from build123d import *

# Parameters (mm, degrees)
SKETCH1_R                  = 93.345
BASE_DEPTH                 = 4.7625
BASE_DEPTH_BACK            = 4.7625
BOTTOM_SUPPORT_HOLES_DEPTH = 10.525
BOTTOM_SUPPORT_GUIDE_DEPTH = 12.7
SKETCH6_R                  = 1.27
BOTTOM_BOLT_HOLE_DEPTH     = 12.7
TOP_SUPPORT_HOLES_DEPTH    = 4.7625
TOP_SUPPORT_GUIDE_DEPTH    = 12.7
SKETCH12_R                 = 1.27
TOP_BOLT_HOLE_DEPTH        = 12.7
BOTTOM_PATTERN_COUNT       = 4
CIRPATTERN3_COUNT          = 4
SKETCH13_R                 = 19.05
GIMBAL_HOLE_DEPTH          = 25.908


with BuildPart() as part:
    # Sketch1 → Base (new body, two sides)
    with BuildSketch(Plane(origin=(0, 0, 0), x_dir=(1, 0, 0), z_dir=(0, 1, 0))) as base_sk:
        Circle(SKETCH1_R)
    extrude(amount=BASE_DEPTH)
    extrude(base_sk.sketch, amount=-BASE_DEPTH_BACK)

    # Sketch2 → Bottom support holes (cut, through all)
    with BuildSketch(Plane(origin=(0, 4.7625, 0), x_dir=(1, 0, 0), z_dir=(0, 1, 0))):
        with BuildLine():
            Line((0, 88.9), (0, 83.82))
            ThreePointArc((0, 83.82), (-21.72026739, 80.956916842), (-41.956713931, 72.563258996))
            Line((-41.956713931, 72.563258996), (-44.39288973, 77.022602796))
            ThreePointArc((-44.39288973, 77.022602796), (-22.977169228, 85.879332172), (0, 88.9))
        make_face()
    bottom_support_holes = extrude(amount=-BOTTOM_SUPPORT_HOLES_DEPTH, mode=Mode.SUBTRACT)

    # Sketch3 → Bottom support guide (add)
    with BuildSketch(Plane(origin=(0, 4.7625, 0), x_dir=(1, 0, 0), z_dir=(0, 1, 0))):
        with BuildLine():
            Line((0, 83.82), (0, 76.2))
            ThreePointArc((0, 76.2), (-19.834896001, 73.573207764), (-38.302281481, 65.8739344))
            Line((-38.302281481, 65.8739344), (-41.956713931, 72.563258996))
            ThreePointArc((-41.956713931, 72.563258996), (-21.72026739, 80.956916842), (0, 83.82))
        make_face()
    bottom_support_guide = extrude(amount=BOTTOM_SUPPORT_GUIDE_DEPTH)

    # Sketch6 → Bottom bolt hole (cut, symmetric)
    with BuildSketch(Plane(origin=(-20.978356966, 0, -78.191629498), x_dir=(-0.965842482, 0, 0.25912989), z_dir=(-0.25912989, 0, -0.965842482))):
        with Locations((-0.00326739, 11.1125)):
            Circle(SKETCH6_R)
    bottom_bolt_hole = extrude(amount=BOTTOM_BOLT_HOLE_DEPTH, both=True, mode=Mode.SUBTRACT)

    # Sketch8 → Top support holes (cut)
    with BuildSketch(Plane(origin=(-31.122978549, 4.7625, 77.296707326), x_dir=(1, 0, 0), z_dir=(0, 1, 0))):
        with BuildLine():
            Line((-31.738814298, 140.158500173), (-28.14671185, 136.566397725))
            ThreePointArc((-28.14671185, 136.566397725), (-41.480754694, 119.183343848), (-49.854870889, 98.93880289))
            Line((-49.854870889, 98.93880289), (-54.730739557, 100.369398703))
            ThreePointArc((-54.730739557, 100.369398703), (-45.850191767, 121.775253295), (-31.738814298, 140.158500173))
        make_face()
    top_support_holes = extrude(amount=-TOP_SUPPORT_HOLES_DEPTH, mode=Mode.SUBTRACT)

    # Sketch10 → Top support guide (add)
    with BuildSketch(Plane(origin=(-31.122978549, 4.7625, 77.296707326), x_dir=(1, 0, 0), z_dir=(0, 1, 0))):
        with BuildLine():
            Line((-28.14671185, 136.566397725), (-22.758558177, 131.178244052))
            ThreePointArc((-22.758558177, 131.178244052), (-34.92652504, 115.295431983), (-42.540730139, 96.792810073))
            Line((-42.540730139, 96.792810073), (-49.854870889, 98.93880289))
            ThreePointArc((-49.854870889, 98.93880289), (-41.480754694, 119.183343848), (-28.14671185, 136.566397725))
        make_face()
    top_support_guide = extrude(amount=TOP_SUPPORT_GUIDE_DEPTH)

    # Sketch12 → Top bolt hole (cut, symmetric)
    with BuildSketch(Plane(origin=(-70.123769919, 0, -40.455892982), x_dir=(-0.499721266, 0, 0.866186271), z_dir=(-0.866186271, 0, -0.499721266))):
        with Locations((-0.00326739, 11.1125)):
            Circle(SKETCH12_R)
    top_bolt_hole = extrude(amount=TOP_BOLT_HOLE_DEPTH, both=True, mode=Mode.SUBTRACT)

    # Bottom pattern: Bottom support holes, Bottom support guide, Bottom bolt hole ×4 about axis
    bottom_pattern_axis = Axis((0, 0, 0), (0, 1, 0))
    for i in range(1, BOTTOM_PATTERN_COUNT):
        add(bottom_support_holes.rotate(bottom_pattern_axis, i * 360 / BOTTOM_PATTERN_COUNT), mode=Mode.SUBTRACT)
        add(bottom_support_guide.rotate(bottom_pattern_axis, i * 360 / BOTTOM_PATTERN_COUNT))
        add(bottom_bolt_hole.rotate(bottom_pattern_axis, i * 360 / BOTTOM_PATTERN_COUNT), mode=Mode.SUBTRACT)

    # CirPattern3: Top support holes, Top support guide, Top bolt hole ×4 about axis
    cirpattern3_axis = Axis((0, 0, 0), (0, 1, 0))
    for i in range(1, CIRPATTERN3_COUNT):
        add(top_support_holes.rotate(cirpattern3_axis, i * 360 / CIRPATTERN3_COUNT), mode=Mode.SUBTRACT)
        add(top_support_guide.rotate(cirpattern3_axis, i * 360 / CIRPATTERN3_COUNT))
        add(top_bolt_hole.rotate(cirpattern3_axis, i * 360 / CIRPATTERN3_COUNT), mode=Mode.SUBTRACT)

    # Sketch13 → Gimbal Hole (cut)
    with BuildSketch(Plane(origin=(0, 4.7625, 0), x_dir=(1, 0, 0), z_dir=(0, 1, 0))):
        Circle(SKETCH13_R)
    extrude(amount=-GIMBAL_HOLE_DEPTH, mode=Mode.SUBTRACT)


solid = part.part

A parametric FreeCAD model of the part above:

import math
import FreeCAD as App
import Part
import Sketcher

V = App.Vector
Q = App.Units.Quantity

doc = App.newDocument("Part")
body = doc.addObject("PartDesign::Body", "Body")

# Sketch on XZ plane
sketch1 = body.newObject("Sketcher::SketchObject", "Sketch")
sketch1.AttachmentSupport = (doc.getObject("XZ_Plane"), [""])
sketch1.MapMode = "FlatFace"
sketch1.addGeometry(Part.Circle(V(0, 0, 0), V(0, 0, 1), 93), False)
sketch1.addConstraint([
    Sketcher.Constraint("Coincident", 0, 3, -1, 1),
    Sketcher.Constraint("Diameter", 0, Q("7.35 in")),
])
pad1 = body.newObject("PartDesign::Pad", "Pad")
pad1.Profile = sketch1
pad1.Type = "TwoLengths"
pad1.Length = Q("0.1875 in")
pad1.Length2 = Q("0.1875 in")
pad1.Reversed = True

# Sketch on XZ plane
sketch2 = body.newObject("Sketcher::SketchObject", "Sketch001")
sketch2.AttachmentSupport = (doc.getObject("XZ_Plane"), [""])
sketch2.MapMode = "FlatFace"
sketch2.AttachmentOffset = App.Placement(V(0, 0, -0.1875 * 25.4), App.Rotation())
sketch2.addGeometry([
    Part.LineSegment(V(0, -84, 0), V(0, -89, 0)),
    Part.ArcOfCircle(Part.Circle(V(0, 0, 0), V(0, 0, 1), 89), math.radians(-120), math.radians(-90)),
    Part.LineSegment(V(-44, -77, 0), V(-42, -73, 0)),
    Part.ArcOfCircle(Part.Circle(V(0, 0, 0), V(0, 0, 1), 84), math.radians(-120), math.radians(-90)),
], False)
sketch2.addConstraint([
    Sketcher.Constraint("Coincident", 0, 2, 1, 2),
    Sketcher.Constraint("Coincident", 1, 1, 2, 1),
    Sketcher.Constraint("Coincident", 2, 2, 3, 1),
    Sketcher.Constraint("Coincident", 3, 2, 0, 1),
    Sketcher.Constraint("Vertical", 0),
    Sketcher.Constraint("Coincident", 1, 3, -1, 1),
    Sketcher.Constraint("Coincident", 3, 3, -1, 1),
    Sketcher.Constraint("PointOnObject", 0, 2, -2),
    Sketcher.Constraint("Radius", 1, Q("3.5 in")),
    Sketcher.Constraint("Radius", 3, Q("3.3 in")),
    Sketcher.Constraint("DistanceX", 1, 1, -1, 1, 44.39289),
    Sketcher.Constraint("DistanceY", 2, 2, -1, 1, 72.563259),
])
pocket1 = body.newObject("PartDesign::Pocket", "Pocket")
pocket1.Profile = sketch2
pocket1.Type = "ThroughAll"
pocket1.Reversed = True

# Sketch on XZ plane
sketch3 = body.newObject("Sketcher::SketchObject", "Sketch002")
sketch3.AttachmentSupport = (doc.getObject("XZ_Plane"), [""])
sketch3.MapMode = "FlatFace"
sketch3.AttachmentOffset = App.Placement(V(0, 0, -0.1875 * 25.4), App.Rotation())
sketch3.addGeometry([
    Part.LineSegment(V(0, -76, 0), V(0, -84, 0)),
    Part.ArcOfCircle(Part.Circle(V(0, 0, 0), V(0, 0, 1), 84), math.radians(-120), math.radians(-90)),
    Part.LineSegment(V(-42, -73, 0), V(-38, -66, 0)),
    Part.ArcOfCircle(Part.Circle(V(0, 0, 0), V(0, 0, 1), 76), math.radians(-120), math.radians(-90)),
], False)
sketch3.addConstraint([
    Sketcher.Constraint("Coincident", 0, 2, 1, 2),
    Sketcher.Constraint("Coincident", 1, 1, 2, 1),
    Sketcher.Constraint("Coincident", 2, 2, 3, 1),
    Sketcher.Constraint("Coincident", 3, 2, 0, 1),
    Sketcher.Constraint("Vertical", 0),
    Sketcher.Constraint("Coincident", 1, 3, -1, 1),
    Sketcher.Constraint("Coincident", 3, 3, -1, 1),
    Sketcher.Constraint("PointOnObject", 0, 2, -2),
    Sketcher.Constraint("Radius", 3, Q("3 in")),
    Sketcher.Constraint("Radius", 1, Q("3.3 in")),
    Sketcher.Constraint("DistanceY", 1, 1, -1, 1, 72.563259),
    Sketcher.Constraint("DistanceX", 2, 2, -1, 1, 38.302281),
])
pad2 = body.newObject("PartDesign::Pad", "Pad001")
pad2.Profile = sketch3
pad2.Length = Q("0.5 in")
pad2.Reversed = True

# Sketch on an angled plane
sketch4 = body.newObject("Sketcher::SketchObject", "Sketch003")
sketch4.Placement = App.Placement(V(-20.978357, 0, -78.191629), App.Rotation(V(-0.965842482, 0, 0.25912989), V(0, 1, 0), V(-0.25912989, 0, -0.965842482), "ZXY"))
sketch4.addGeometry(Part.Circle(V(0, 11.1, 0), V(0, 0, 1), 1.3), False)
sketch4.addConstraint([
    Sketcher.Constraint("Diameter", 0, Q("0.1 in")),
    Sketcher.Constraint("DistanceY", -1, 1, 0, 3, Q("0.4375 in")),
    Sketcher.Constraint("DistanceX", 0, 3, -1, 1, 0.003267),
])
pocket2 = body.newObject("PartDesign::Pocket", "Pocket001")
pocket2.Profile = sketch4
pocket2.Length = Q("1 in")
pocket2.Midplane = True

# Sketch on XZ plane
sketch5 = body.newObject("Sketcher::SketchObject", "Sketch004")
sketch5.AttachmentSupport = (doc.getObject("XZ_Plane"), [""])
sketch5.MapMode = "FlatFace"
sketch5.AttachmentOffset = App.Placement(V(0, 0, -0.1875 * 25.4), App.Rotation())
sketch5.addGeometry([
    Part.LineSegment(V(-59, -59, 0), V(-63, -63, 0)),
    Part.ArcOfCircle(Part.Circle(V(0, 0, 0), V(0, 0, 1), 89), math.radians(-165), math.radians(-135)),
    Part.LineSegment(V(-86, -23, 0), V(-81, -22, 0)),
    Part.ArcOfCircle(Part.Circle(V(0, 0, 0), V(0, 0, 1), 84), math.radians(-165), math.radians(-135)),
], False)
sketch5.addConstraint([
    Sketcher.Constraint("Coincident", 0, 2, 1, 2),
    Sketcher.Constraint("Coincident", 1, 1, 2, 1),
    Sketcher.Constraint("Coincident", 2, 2, 3, 1),
    Sketcher.Constraint("Coincident", 3, 2, 0, 1),
    Sketcher.Constraint("Coincident", 1, 3, -1, 1),
    Sketcher.Constraint("Coincident", 3, 3, -1, 1),
    Sketcher.Constraint("Radius", 1, Q("3.5 in")),
    Sketcher.Constraint("Radius", 3, Q("3.3 in")),
    Sketcher.Constraint("Angle", 0, Q("-135 deg")),
    Sketcher.Constraint("DistanceY", 0, 2, 1, 1, Q("1.5665001 in")),
    Sketcher.Constraint("DistanceX", 1, 1, -1, 1, 85.853718),
    Sketcher.Constraint("DistanceX", 2, 2, -1, 1, 80.977849),
])
pocket3 = body.newObject("PartDesign::Pocket", "Pocket002")
pocket3.Profile = sketch5
pocket3.Length = Q("0.1875 in")
pocket3.Reversed = True

# Sketch on XZ plane
sketch6 = body.newObject("Sketcher::SketchObject", "Sketch005")
sketch6.AttachmentSupport = (doc.getObject("XZ_Plane"), [""])
sketch6.MapMode = "FlatFace"
sketch6.AttachmentOffset = App.Placement(V(0, 0, -0.1875 * 25.4), App.Rotation())
sketch6.addGeometry([
    Part.LineSegment(V(-54, -54, 0), V(-59, -59, 0)),
    Part.ArcOfCircle(Part.Circle(V(0, 0, 0), V(0, 0, 1), 84), math.radians(-165), math.radians(-135)),
    Part.LineSegment(V(-81, -22, 0), V(-74, -19, 0)),
    Part.ArcOfCircle(Part.Circle(V(0, 0, 0), V(0, 0, 1), 76), math.radians(-165), math.radians(-135)),
], False)
sketch6.addConstraint([
    Sketcher.Constraint("Coincident", 0, 2, 1, 2),
    Sketcher.Constraint("Coincident", 1, 1, 2, 1),
    Sketcher.Constraint("Coincident", 2, 2, 3, 1),
    Sketcher.Constraint("Coincident", 3, 2, 0, 1),
    Sketcher.Constraint("Coincident", 1, 3, -1, 1),
    Sketcher.Constraint("Coincident", 3, 3, -1, 1),
    Sketcher.Constraint("Radius", 3, Q("3 in")),
    Sketcher.Constraint("Radius", 1, Q("3.3 in")),
    Sketcher.Constraint("Angle", 0, Q("-135 deg")),
    Sketcher.Constraint("DistanceX", 0, 2, -1, 1, 59.26969),
    Sketcher.Constraint("DistanceX", 1, 1, -1, 1, 80.977849),
    Sketcher.Constraint("DistanceX", 2, 2, -1, 1, 73.663709),
])
pad3 = body.newObject("PartDesign::Pad", "Pad002")
pad3.Profile = sketch6
pad3.Length = Q("0.5 in")
pad3.Reversed = True

# Sketch on an angled plane
sketch7 = body.newObject("Sketcher::SketchObject", "Sketch006")
sketch7.Placement = App.Placement(V(-70.12377, 0, -40.455893), App.Rotation(V(-0.499721266, 0, 0.866186271), V(0, 1, 0), V(-0.866186271, 0, -0.499721266), "ZXY"))
sketch7.addGeometry(Part.Circle(V(0, 11.1, 0), V(0, 0, 1), 1.3), False)
sketch7.addConstraint([
    Sketcher.Constraint("Diameter", 0, Q("0.1 in")),
    Sketcher.Constraint("DistanceY", -1, 1, 0, 3, Q("0.4375 in")),
    Sketcher.Constraint("DistanceX", 0, 3, -1, 1, 0.003267),
])
pocket4 = body.newObject("PartDesign::Pocket", "Pocket003")
pocket4.Profile = sketch7
pocket4.Length = Q("1 in")
pocket4.Midplane = True
doc.recompute()

polarpattern = body.newObject("PartDesign::PolarPattern", "PolarPattern")
polarpattern.Originals = [pocket1, pad2, pocket2]
polarpattern.Axis = (doc.getObject("Y_Axis"), [""])
polarpattern.Angle = 360
polarpattern.Occurrences = 4
body.Tip = polarpattern
doc.recompute()

polarpattern2 = body.newObject("PartDesign::PolarPattern", "PolarPattern001")
polarpattern2.Originals = [pocket3, pad3, pocket4]
polarpattern2.Axis = (doc.getObject("Y_Axis"), [""])
polarpattern2.Angle = 360
polarpattern2.Occurrences = 4
body.Tip = polarpattern2

# Sketch on XZ plane
sketch8 = body.newObject("Sketcher::SketchObject", "Sketch007")
sketch8.AttachmentSupport = (doc.getObject("XZ_Plane"), [""])
sketch8.MapMode = "FlatFace"
sketch8.AttachmentOffset = App.Placement(V(0, 0, -0.1875 * 25.4), App.Rotation())
sketch8.addGeometry(Part.Circle(V(0, 0, 0), V(0, 0, 1), 19), False)
sketch8.addConstraint([
    Sketcher.Constraint("Coincident", 0, 3, -1, 1),
    Sketcher.Constraint("Diameter", 0, Q("1.5 in")),
])
pocket5 = body.newObject("PartDesign::Pocket", "Pocket004")
pocket5.Profile = sketch8
pocket5.Length = Q("1.02 in")
pocket5.Reversed = True

doc.recompute()
